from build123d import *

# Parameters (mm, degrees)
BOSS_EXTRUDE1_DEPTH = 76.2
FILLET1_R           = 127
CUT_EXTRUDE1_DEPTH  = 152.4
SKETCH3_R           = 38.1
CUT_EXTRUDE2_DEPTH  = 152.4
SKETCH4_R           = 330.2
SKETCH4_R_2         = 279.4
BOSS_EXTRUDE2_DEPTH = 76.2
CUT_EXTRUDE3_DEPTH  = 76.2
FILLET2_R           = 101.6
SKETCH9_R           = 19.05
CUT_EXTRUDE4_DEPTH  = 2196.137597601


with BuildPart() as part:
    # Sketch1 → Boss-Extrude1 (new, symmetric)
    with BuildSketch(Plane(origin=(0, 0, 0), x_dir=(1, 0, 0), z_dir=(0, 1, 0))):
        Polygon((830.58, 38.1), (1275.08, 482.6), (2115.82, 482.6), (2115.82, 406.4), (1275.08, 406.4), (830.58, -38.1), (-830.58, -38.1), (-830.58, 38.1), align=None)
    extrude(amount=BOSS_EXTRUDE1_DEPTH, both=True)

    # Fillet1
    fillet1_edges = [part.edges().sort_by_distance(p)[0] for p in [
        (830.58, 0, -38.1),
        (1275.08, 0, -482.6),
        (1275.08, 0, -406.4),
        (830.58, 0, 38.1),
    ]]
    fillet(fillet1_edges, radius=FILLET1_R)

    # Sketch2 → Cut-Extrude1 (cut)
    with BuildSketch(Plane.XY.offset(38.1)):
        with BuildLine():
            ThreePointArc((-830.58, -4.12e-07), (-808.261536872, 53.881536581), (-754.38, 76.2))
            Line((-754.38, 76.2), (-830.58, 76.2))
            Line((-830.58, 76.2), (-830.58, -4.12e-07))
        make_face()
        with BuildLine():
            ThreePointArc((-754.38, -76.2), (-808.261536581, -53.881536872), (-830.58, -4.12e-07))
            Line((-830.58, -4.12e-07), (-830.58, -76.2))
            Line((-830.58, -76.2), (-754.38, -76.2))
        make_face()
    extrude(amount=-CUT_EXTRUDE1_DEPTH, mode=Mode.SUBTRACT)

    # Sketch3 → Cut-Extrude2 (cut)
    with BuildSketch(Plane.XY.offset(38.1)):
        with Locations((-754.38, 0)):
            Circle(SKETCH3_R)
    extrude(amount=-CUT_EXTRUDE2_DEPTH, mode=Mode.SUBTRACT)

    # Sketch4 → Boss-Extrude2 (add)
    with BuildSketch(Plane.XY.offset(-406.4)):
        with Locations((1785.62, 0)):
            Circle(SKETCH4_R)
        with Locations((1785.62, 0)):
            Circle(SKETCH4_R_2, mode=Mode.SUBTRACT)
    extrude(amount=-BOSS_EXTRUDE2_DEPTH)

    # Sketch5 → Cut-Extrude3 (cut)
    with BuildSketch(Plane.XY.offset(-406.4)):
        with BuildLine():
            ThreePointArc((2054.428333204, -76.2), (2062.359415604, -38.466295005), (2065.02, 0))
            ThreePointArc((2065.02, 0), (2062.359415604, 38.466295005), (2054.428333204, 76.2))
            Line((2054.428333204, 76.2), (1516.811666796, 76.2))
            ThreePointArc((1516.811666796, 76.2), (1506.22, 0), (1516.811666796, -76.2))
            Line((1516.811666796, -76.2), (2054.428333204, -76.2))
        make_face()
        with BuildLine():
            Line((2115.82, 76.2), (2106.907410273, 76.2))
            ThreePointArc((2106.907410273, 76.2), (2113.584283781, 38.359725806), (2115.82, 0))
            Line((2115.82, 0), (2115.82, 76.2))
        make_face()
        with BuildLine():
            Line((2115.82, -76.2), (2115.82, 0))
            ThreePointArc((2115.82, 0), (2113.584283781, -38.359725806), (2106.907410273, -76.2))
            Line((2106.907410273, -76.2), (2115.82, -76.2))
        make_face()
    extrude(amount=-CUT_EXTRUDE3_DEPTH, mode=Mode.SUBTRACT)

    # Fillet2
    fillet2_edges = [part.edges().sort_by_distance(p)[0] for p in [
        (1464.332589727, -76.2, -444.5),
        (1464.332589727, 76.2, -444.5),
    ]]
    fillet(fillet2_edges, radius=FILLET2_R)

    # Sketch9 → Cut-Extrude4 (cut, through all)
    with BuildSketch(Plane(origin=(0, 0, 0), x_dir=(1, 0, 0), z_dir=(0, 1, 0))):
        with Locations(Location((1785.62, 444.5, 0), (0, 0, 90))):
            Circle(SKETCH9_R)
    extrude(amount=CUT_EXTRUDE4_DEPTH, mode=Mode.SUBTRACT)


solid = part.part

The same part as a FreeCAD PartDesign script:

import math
import FreeCAD as App
import Part
import Sketcher
from FreeCAD import Vector
Q = App.Units.Quantity


def edges_at(feature, points):
    """Names of the edges that pass closest to the given points."""
    edges = feature.Shape.Edges
    near = lambda p: min(range(len(edges)), key=lambda i: edges[i].distToShape(Part.Vertex(*p))[0])
    return sorted({f"Edge{near(p) + 1}" for p in points})


def add_polygon(sketch, points):
    """Adds a closed chain of lines whose ends are joined by coincident constraints."""
    first, n = sketch.GeometryCount, len(points)
    for a, b in zip(points, points[1:] + points[:1]):
        sketch.addGeometry(Part.LineSegment(App.Vector(*a, 0), App.Vector(*b, 0)), False)
    for i in range(n):
        sketch.addConstraint(Sketcher.Constraint("Coincident", first + i, 2, first + (i + 1) % n, 1))

doc = App.newDocument("Part")
body = doc.addObject("PartDesign::Body", "Body")

# Sketch on XZ plane
sketch1 = body.newObject("Sketcher::SketchObject", "Sketch")
sketch1.AttachmentSupport = (doc.getObject("XZ_Plane"), [""])
sketch1.MapMode = "FlatFace"
add_polygon(sketch1, [(1275, -483), (831, -38), (-831, -38), (-831, 38), (831, 38), (1275, -406), (2116, -406), (2116, -483)])  # lines 0-7
sketch1.addConstraint(Sketcher.Constraint("Horizontal", 1))
sketch1.addConstraint(Sketcher.Constraint("Vertical", 2))
sketch1.addConstraint(Sketcher.Constraint("Horizontal", 3))
sketch1.addConstraint(Sketcher.Constraint("Horizontal", 5))
sketch1.addConstraint(Sketcher.Constraint("Vertical", 6))
sketch1.addConstraint(Sketcher.Constraint("Horizontal", 7))
sketch1.addConstraint(Sketcher.Constraint("Symmetric", 0, 2, 2, 2, -1, 1))
sketch1.addConstraint(Sketcher.Constraint("Parallel", 0, 4))
sketch1.addConstraint(Sketcher.Constraint("Vertical", 0, 2, 3, 2))
sketch1.addConstraint(Sketcher.Constraint("Vertical", 4, 2, 7, 2))
sketch1.addConstraint(Sketcher.Constraint("DistanceY", 2, 1, 2, 2, Q("3 in")))
sketch1.addConstraint(Sketcher.Constraint("DistanceX", 1, 2, 1, 1, Q("65.4 in")))
sketch1.addConstraint(Sketcher.Constraint("DistanceX", 5, 1, 5, 2, Q("33.1 in")))
sketch1.addConstraint(Sketcher.Constraint("DistanceY", 4, 2, -1, 1, Q("16 in")))
sketch1.addConstraint(Sketcher.Constraint("Angle", 0, Q("135 deg")))
pad1 = body.newObject("PartDesign::Pad", "Pad")
pad1.Profile = sketch1
pad1.Length = Q("6 in")
pad1.Midplane = True
doc.recompute()

fillet = body.newObject("PartDesign::Fillet", "Fillet")
fillet.Base = (pad1, edges_at(pad1, [
    (830.58, 0, -38.1),
    (1275.08, 0, -482.6),
    (1275.08, 0, -406.4),
    (830.58, 0, 38.1),
]))
fillet.Radius = Q("5 in")

# Sketch on XY plane
sketch2 = body.newObject("Sketcher::SketchObject", "Sketch001")
sketch2.AttachmentSupport = (doc.getObject("XY_Plane"), [""])
sketch2.MapMode = "FlatFace"
sketch2.AttachmentOffset = App.Placement(Vector(0, 0, 1.5 * 25.4), App.Rotation())
sketch2.addGeometry(Part.ArcOfCircle(Part.Circle(Vector(-754, 0, 0), Vector(0, 0, 1), 76), math.radians(90), math.radians(180)), False)
sketch2.addGeometry(Part.LineSegment(Vector(-754, 76, 0), Vector(-831, 76, 0)), False)
sketch2.addGeometry(Part.LineSegment(Vector(-831, 76, 0), Vector(-831, 0, 0)), False)
sketch2.addGeometry(Part.ArcOfCircle(Part.Circle(Vector(-754, 0, 0), Vector(0, 0, 1), 76), math.radians(-180), math.radians(-90)), False)
sketch2.addGeometry(Part.LineSegment(Vector(-831, 0, 0), Vector(-831, -76, 0)), False)
sketch2.addGeometry(Part.LineSegment(Vector(-831, -76, 0), Vector(-754, -76, 0)), False)
sketch2.addConstraint(Sketcher.Constraint("Tangent", 0, 1, 1, 1))
sketch2.addConstraint(Sketcher.Constraint("Coincident", 1, 2, 2, 1))
sketch2.addConstraint(Sketcher.Constraint("Tangent", 2, 2, 0, 2))
sketch2.addConstraint(Sketcher.Constraint("Tangent", 3, 1, 4, 1))
sketch2.addConstraint(Sketcher.Constraint("Coincident", 4, 2, 5, 1))
sketch2.addConstraint(Sketcher.Constraint("Tangent", 5, 2, 3, 2))
sketch2.addConstraint(Sketcher.Constraint("Horizontal", 1))
sketch2.addConstraint(Sketcher.Constraint("Vertical", 2))
sketch2.addConstraint(Sketcher.Constraint("Vertical", 4))
sketch2.addConstraint(Sketcher.Constraint("Horizontal", 5))
sketch2.addConstraint(Sketcher.Constraint("Coincident", 3, 3, 0, 3))
sketch2.addConstraint(Sketcher.Constraint("Equal", 0, 3))
sketch2.addConstraint(Sketcher.Constraint("PointOnObject", 0, 3, -1))
sketch2.addConstraint(Sketcher.Constraint("Radius", 0, Q("3 in")))
sketch2.addConstraint(Sketcher.Constraint("DistanceX", 0, 3, -1, 1, Q("29.7 in")))
pocket1 = body.newObject("PartDesign::Pocket", "Pocket")
pocket1.Profile = sketch2
pocket1.Length = Q("6 in")

# Sketch on XY plane
sketch3 = body.newObject("Sketcher::SketchObject", "Sketch002")
sketch3.AttachmentSupport = (doc.getObject("XY_Plane"), [""])
sketch3.MapMode = "FlatFace"
sketch3.AttachmentOffset = App.Placement(Vector(0, 0, 1.5 * 25.4), App.Rotation())
sketch3.addGeometry(Part.Circle(Vector(-754, 0, 0), Vector(0, 0, 1), 38), False)
sketch3.addConstraint(Sketcher.Constraint("PointOnObject", 0, 3, -1))
sketch3.addConstraint(Sketcher.Constraint("Diameter", 0, Q("3 in")))
sketch3.addConstraint(Sketcher.Constraint("DistanceX", 0, 3, -1, 1, Q("29.7 in")))
pocket2 = body.newObject("PartDesign::Pocket", "Pocket001")
pocket2.Profile = sketch3
pocket2.Length = Q("6 in")

# Sketch on XY plane
sketch4 = body.newObject("Sketcher::SketchObject", "Sketch003")
sketch4.AttachmentSupport = (doc.getObject("XY_Plane"), [""])
sketch4.MapMode = "FlatFace"
sketch4.AttachmentOffset = App.Placement(Vector(0, 0, -16 * 25.4), App.Rotation())
sketch4.addGeometry(Part.Circle(Vector(1786, 0, 0), Vector(0, 0, 1), 330), False)
sketch4.addGeometry(Part.Circle(Vector(1786, 0, 0), Vector(0, 0, 1), 279), False)
sketch4.addConstraint(Sketcher.Constraint("Coincident", 1, 3, 0, 3))
sketch4.addConstraint(Sketcher.Constraint("PointOnObject", 0, 3, -1))
sketch4.addConstraint(Sketcher.Constraint("Diameter", 0, Q("26 in")))
sketch4.addConstraint(Sketcher.Constraint("Diameter", 1, Q("22 in")))
sketch4.addConstraint(Sketcher.Constraint("DistanceX", -1, 1, 0, 3, Q("70.3 in")))
pad2 = body.newObject("PartDesign::Pad", "Pad001")
pad2.Profile = sketch4
pad2.Length = Q("3 in")
pad2.Reversed = True

# Sketch on XY plane
sketch5 = body.newObject("Sketcher::SketchObject", "Sketch004")
sketch5.AttachmentSupport = (doc.getObject("XY_Plane"), [""])
sketch5.MapMode = "FlatFace"
sketch5.AttachmentOffset = App.Placement(Vector(0, 0, -16 * 25.4), App.Rotation())
sketch5.addGeometry(Part.ArcOfCircle(Part.Circle(Vector(1786, 0, 0), Vector(0, 0, 1), 279), math.radians(-15.83), math.radians(0)), False)
sketch5.addGeometry(Part.ArcOfCircle(Part.Circle(Vector(1786, 0, 0), Vector(0, 0, 1), 279), math.radians(0), math.radians(15.83)), False)
sketch5.addGeometry(Part.LineSegment(Vector(2054, 76, 0), Vector(1517, 76, 0)), False)
sketch5.addGeometry(Part.ArcOfCircle(Part.Circle(Vector(1786, 0, 0), Vector(0, 0, 1), 279), math.radians(164), math.radians(196)), False)
sketch5.addGeometry(Part.LineSegment(Vector(1517, -76, 0), Vector(2054, -76, 0)), False)
sketch5.addGeometry(Part.LineSegment(Vector(2116, 76, 0), Vector(2107, 76, 0)), False)
sketch5.addGeometry(Part.ArcOfCircle(Part.Circle(Vector(1786, 0, 0), Vector(0, 0, 1), 330), math.radians(0), math.radians(13.34)), False)
sketch5.addGeometry(Part.LineSegment(Vector(2116, 0, 0), Vector(2116, 76, 0)), False)
sketch5.addGeometry(Part.LineSegment(Vector(2116, -76, 0), Vector(2116, 0, 0)), False)
sketch5.addGeometry(Part.ArcOfCircle(Part.Circle(Vector(1786, 0, 0), Vector(0, 0, 1), 330), math.radians(-13.34), math.radians(0)), False)
sketch5.addGeometry(Part.LineSegment(Vector(2107, -76, 0), Vector(2116, -76, 0)), False)
sketch5.addConstraint(Sketcher.Constraint("Tangent", 0, 2, 1, 1))
sketch5.addConstraint(Sketcher.Constraint("Coincident", 1, 2, 2, 1))
sketch5.addConstraint(Sketcher.Constraint("Coincident", 2, 2, 3, 1))
sketch5.addConstraint(Sketcher.Constraint("Coincident", 3, 2, 4, 1))
sketch5.addConstraint(Sketcher.Constraint("Coincident", 4, 2, 0, 1))
sketch5.addConstraint(Sketcher.Constraint("Coincident", 5, 2, 6, 2))
sketch5.addConstraint(Sketcher.Constraint("Tangent", 6, 1, 7, 1))
sketch5.addConstraint(Sketcher.Constraint("Coincident", 7, 2, 5, 1))
sketch5.addConstraint(Sketcher.Constraint("Tangent", 8, 2, 9, 2))
sketch5.addConstraint(Sketcher.Constraint("Coincident", 9, 1, 10, 1))
sketch5.addConstraint(Sketcher.Constraint("Coincident", 10, 2, 8, 1))
sketch5.addConstraint(Sketcher.Constraint("Horizontal", 2))
sketch5.addConstraint(Sketcher.Constraint("Horizontal", 4))
sketch5.addConstraint(Sketcher.Constraint("Horizontal", 5))
sketch5.addConstraint(Sketcher.Constraint("Vertical", 7))
sketch5.addConstraint(Sketcher.Constraint("Vertical", 8))
sketch5.addConstraint(Sketcher.Constraint("Horizontal", 10))
sketch5.addConstraint(Sketcher.Constraint("Coincident", 3, 3, 0, 3))
sketch5.addConstraint(Sketcher.Constraint("Coincident", 6, 3, 0, 3))
sketch5.addConstraint(Sketcher.Constraint("Coincident", 9, 3, 0, 3))
sketch5.addConstraint(Sketcher.Constraint("Equal", 0, 1))
sketch5.addConstraint(Sketcher.Constraint("Equal", 1, 3))
sketch5.addConstraint(Sketcher.Constraint("Equal", 6, 9))
sketch5.addConstraint(Sketcher.Constraint("Symmetric", 2, 2, 3, 2, -1))
sketch5.addConstraint(Sketcher.Constraint("PointOnObject", 0, 2, -1))
sketch5.addConstraint(Sketcher.Constraint("Horizontal", 2, 2, 5, 2))
sketch5.addConstraint(Sketcher.Constraint("Horizontal", 4, 2, 9, 1))
sketch5.addConstraint(Sketcher.Constraint("Radius", 0, Q("11 in")))
sketch5.addConstraint(Sketcher.Constraint("Radius", 6, Q("13 in")))
sketch5.addConstraint(Sketcher.Constraint("DistanceY", 7, 1, 7, 2, Q("3 in")))
sketch5.addConstraint(Sketcher.Constraint("DistanceX", -1, 1, 0, 3, Q("70.3 in")))
pocket3 = body.newObject("PartDesign::Pocket", "Pocket002")
pocket3.Profile = sketch5
pocket3.Length = Q("3 in")
doc.recompute()

fillet2 = body.newObject("PartDesign::Fillet", "Fillet001")
fillet2.Base = (pocket3, edges_at(pocket3, [(1464.333, -76.2, -444.5), (1464.333, 76.2, -444.5)]))
fillet2.Radius = Q("4 in")

# Sketch on XZ plane
sketch6 = body.newObject("Sketcher::SketchObject", "Sketch005")
sketch6.AttachmentSupport = (doc.getObject("XZ_Plane"), [""])
sketch6.MapMode = "FlatFace"
sketch6.addGeometry(Part.Circle(Vector(1786, -444, 0), Vector(0, 0, 1), 19), False)
sketch6.addConstraint(Sketcher.Constraint("Diameter", 0, Q("1.5 in")))
sketch6.addConstraint(Sketcher.Constraint("DistanceX", -1, 1, 0, 3, Q("70.3 in")))
sketch6.addConstraint(Sketcher.Constraint("DistanceY", 0, 3, -1, 1, Q("17.5 in")))
pocket4 = body.newObject("PartDesign::Pocket", "Pocket003")
pocket4.Profile = sketch6
pocket4.Type = "ThroughAll"

doc.recompute()
